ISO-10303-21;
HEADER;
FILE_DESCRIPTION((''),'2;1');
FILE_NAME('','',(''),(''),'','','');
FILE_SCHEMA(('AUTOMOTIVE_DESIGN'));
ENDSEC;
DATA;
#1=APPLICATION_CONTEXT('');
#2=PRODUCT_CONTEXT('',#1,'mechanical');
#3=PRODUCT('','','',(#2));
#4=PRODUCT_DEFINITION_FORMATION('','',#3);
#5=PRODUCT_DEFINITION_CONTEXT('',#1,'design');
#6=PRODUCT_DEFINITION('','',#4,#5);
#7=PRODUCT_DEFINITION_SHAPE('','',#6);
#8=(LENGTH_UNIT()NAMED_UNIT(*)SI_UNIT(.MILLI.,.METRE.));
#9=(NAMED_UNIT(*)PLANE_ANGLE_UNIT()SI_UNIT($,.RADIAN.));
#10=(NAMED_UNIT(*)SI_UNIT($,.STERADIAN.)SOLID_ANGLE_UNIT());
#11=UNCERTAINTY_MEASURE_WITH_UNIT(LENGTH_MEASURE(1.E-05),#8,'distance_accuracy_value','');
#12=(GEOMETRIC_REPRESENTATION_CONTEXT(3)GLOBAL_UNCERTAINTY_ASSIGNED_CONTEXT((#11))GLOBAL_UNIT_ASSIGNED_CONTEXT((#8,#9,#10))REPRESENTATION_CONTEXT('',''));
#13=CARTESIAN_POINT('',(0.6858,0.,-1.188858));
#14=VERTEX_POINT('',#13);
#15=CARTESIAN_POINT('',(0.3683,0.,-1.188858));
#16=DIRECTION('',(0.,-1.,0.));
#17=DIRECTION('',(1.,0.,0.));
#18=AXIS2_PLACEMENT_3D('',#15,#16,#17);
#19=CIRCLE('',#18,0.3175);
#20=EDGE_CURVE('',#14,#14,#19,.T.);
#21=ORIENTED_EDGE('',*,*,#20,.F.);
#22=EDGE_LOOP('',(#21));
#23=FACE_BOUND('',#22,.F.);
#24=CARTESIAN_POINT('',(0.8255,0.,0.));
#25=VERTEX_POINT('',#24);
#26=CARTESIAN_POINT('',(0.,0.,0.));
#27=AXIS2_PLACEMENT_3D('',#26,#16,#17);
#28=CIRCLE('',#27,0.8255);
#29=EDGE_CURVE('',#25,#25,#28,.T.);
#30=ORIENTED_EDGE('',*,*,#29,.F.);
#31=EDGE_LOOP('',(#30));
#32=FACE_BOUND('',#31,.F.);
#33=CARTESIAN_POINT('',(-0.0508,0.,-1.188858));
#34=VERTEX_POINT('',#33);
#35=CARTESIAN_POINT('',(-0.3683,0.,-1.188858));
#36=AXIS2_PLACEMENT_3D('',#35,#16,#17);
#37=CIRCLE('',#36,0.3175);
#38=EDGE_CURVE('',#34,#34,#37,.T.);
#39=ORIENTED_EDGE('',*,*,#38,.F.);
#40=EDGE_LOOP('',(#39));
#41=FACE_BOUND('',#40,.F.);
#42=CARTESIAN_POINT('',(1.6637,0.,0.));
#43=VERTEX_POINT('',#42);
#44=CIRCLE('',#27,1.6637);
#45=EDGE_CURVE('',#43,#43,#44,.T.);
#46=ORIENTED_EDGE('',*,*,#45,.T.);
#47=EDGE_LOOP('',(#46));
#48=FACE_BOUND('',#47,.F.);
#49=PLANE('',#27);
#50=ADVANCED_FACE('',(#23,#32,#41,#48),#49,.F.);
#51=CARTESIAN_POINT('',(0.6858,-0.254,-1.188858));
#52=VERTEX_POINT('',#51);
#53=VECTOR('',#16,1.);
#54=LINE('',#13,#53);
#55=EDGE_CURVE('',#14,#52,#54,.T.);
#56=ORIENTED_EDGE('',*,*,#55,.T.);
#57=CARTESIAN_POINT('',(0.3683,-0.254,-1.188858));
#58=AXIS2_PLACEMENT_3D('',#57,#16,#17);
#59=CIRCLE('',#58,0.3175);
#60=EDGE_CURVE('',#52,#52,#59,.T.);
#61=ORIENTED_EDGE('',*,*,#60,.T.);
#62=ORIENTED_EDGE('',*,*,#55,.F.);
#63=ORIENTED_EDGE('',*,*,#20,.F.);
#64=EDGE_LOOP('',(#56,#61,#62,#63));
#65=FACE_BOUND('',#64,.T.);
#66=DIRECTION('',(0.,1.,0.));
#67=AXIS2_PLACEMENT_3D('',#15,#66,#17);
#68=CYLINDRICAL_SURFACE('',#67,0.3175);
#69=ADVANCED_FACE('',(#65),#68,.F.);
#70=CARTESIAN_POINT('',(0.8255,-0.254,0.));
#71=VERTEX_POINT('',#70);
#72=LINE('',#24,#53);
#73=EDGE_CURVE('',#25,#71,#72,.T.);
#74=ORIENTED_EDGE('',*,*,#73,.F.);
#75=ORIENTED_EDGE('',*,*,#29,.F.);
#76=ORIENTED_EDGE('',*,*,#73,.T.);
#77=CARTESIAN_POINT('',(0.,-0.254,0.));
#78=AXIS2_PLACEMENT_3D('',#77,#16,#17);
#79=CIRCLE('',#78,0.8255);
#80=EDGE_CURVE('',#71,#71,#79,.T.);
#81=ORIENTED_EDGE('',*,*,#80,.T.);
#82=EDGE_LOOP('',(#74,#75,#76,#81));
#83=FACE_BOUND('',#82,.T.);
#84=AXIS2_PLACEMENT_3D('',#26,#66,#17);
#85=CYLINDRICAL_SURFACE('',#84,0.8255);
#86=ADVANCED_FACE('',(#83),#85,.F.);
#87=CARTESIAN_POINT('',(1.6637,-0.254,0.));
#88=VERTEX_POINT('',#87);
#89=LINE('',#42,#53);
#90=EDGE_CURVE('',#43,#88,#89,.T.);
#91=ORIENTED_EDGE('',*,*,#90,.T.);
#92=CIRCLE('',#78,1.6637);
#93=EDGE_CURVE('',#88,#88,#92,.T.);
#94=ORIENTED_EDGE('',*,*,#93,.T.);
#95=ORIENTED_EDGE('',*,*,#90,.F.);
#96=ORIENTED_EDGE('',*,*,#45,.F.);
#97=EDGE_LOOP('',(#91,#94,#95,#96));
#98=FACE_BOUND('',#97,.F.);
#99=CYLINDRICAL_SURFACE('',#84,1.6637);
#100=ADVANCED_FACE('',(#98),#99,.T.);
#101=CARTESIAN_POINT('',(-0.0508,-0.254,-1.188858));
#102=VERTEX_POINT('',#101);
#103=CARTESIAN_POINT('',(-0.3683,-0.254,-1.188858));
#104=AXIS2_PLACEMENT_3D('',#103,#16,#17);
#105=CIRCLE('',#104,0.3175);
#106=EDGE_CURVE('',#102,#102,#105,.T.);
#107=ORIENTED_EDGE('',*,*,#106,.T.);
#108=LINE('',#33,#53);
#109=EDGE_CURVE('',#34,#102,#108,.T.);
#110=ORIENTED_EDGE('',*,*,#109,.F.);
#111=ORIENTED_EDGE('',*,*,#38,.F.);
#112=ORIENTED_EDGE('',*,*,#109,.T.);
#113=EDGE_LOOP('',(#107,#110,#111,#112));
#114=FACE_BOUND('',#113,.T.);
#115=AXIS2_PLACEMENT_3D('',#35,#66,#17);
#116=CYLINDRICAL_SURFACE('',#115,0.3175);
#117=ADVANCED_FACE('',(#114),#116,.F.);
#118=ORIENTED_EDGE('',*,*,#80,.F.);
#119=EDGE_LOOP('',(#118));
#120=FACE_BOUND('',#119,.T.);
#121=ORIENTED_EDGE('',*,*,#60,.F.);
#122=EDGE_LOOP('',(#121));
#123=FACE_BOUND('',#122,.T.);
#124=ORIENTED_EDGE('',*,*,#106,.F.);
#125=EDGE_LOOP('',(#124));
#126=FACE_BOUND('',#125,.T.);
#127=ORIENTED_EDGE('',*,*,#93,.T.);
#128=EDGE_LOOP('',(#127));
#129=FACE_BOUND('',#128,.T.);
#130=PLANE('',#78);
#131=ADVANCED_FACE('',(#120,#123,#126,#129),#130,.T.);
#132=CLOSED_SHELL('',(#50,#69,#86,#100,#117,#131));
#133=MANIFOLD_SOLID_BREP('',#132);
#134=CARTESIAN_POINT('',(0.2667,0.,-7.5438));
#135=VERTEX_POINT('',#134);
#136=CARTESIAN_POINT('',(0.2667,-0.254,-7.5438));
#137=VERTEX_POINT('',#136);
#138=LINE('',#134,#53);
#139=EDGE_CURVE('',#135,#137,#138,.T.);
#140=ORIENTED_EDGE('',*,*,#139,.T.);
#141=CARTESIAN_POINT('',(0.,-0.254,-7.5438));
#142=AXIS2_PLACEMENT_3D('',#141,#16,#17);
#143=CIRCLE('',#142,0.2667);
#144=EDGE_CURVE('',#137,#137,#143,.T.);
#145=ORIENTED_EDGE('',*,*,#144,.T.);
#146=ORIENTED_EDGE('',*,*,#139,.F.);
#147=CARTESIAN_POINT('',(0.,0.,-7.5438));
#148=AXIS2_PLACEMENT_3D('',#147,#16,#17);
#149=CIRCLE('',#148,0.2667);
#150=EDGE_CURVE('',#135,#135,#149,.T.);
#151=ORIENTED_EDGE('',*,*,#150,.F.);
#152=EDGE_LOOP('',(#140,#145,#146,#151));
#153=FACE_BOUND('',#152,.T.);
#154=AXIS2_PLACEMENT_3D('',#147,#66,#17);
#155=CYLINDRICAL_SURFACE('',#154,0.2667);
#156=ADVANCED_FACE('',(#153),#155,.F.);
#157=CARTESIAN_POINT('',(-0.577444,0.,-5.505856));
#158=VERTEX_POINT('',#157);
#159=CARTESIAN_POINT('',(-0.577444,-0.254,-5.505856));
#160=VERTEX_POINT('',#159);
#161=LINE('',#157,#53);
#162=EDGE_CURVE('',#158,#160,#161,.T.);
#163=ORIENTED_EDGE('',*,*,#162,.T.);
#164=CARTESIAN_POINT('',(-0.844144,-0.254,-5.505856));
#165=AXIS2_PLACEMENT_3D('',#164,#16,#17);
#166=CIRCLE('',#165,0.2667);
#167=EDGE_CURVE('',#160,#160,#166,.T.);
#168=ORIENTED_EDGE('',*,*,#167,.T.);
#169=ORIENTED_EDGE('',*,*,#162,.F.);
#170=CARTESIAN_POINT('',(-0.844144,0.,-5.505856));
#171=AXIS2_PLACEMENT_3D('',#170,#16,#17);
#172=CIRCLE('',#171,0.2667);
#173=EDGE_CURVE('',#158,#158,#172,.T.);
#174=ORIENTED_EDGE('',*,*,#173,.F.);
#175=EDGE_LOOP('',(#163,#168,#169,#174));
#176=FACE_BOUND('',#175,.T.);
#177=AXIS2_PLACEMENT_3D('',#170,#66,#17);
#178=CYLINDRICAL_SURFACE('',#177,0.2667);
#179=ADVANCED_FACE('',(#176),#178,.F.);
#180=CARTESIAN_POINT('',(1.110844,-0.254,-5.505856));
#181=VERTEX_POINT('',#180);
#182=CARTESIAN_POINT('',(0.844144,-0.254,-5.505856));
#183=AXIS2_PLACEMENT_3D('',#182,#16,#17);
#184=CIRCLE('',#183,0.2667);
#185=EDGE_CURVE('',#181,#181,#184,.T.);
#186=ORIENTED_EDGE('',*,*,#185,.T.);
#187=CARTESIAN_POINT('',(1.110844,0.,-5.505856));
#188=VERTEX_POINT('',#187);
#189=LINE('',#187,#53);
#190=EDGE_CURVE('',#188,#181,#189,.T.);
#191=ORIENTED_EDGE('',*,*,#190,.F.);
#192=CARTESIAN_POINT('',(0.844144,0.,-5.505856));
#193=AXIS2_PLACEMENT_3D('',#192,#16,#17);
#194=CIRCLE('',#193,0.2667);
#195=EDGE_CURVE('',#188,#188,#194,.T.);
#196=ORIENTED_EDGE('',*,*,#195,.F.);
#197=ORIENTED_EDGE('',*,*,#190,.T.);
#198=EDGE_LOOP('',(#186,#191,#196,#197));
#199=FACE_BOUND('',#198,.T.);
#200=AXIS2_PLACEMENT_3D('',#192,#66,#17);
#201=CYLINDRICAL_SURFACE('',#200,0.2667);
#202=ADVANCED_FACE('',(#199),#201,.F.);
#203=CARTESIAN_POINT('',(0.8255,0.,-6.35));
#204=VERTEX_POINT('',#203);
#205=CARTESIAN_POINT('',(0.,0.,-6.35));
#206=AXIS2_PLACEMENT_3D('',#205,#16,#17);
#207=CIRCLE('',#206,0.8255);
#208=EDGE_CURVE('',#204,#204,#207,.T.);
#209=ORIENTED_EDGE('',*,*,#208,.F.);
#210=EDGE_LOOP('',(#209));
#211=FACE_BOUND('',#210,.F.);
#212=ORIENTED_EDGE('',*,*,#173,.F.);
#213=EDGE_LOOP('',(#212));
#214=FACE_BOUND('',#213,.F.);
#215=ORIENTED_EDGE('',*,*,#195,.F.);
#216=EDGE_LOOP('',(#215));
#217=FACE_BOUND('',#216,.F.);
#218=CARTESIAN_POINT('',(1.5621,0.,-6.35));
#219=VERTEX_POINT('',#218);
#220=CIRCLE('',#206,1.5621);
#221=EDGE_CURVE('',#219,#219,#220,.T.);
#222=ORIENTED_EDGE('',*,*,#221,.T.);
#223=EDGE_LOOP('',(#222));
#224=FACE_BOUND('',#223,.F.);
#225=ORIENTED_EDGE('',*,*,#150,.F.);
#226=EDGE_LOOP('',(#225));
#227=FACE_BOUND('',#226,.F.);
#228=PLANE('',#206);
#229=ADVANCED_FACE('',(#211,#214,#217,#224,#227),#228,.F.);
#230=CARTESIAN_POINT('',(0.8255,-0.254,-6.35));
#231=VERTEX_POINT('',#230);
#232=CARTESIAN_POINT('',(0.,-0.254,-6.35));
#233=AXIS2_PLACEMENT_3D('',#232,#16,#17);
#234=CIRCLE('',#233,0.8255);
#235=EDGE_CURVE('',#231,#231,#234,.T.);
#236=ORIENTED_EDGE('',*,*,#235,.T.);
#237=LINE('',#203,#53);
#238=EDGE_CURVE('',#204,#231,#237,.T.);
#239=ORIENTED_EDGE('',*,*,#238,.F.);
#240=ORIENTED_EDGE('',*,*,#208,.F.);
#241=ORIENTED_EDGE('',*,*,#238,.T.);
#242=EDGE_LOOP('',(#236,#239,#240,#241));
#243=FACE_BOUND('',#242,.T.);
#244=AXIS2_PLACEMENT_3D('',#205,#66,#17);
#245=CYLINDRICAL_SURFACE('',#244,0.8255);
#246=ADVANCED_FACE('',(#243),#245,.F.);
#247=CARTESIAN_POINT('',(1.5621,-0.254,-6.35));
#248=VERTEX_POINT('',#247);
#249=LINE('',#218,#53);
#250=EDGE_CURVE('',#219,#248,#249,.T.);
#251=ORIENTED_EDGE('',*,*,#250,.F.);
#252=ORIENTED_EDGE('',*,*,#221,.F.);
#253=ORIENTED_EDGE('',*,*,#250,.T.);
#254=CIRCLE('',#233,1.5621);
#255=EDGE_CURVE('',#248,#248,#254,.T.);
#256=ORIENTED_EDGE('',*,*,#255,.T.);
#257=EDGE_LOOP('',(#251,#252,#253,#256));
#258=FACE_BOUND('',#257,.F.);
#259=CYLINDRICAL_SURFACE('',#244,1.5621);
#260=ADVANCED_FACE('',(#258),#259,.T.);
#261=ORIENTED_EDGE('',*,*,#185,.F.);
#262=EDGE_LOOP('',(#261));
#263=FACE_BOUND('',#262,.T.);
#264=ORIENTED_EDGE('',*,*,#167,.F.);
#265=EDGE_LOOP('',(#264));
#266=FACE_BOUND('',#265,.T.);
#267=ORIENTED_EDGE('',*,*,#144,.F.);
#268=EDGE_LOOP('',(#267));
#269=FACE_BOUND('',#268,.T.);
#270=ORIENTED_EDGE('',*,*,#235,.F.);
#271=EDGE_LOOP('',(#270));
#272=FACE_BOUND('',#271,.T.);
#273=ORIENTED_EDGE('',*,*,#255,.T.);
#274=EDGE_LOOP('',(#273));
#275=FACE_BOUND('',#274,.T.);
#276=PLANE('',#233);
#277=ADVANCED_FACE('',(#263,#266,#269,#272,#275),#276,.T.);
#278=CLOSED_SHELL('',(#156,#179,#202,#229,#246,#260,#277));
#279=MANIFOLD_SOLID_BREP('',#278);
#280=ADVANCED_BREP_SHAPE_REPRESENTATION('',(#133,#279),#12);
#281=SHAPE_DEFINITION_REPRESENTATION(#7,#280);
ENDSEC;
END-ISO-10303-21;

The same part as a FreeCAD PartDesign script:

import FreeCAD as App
import Part
import Sketcher
from FreeCAD import Vector
Q = App.Units.Quantity

doc = App.newDocument("Part")
params = doc.addObject("Spreadsheet::Sheet", "Params")
for row, (alias, value) in enumerate([
    ("sketch1_diameter", "0.131 in"),
    ("sketch1_diameter2", "0.025 in"),
    ("sketch1_diameter3", "0.065 in"),
    ("sketch1_diameter4", "0.123 in"),
    ("sketch1_diameter5", "0.021 in"),
    ("pad1_length", "0.01 in"),
], start=1):
    params.set(f"A{row}", alias)
    params.set(f"B{row}", "=" + value)
    params.setAlias(f"B{row}", alias)

body = doc.addObject("PartDesign::Body", "Body")
body.AllowCompound = True

sketch1 = body.newObject("Sketcher::SketchObject", "Sketch")
sketch1.AttachmentSupport = (doc.getObject("XZ_Plane"), [""])
sketch1.MapMode = "FlatFace"
sketch1.addGeometry([
    Part.Circle(Vector(0, 0, 0), Vector(0, 0, 1), 1.66),
    Part.Circle(Vector(-0.37, -1.19, 0), Vector(0, 0, 1), 0.32),
    Part.Circle(Vector(0.37, -1.19, 0), Vector(0, 0, 1), 0.32),
    Part.Circle(Vector(0, 0, 0), Vector(0, 0, 1), 0.83),
    Part.Circle(Vector(0, -6.35, 0), Vector(0, 0, 1), 1.56),
    Part.Circle(Vector(0, -7.54, 0), Vector(0, 0, 1), 0.27),
    Part.Circle(Vector(-0.84, -5.51, 0), Vector(0, 0, 1), 0.27),
    Part.Circle(Vector(0, -6.35, 0), Vector(0, 0, 1), 0.83),
    Part.Circle(Vector(0.84, -5.51, 0), Vector(0, 0, 1), 0.27),
], False)
sketch1.addConstraint([
    Sketcher.Constraint("Coincident", 0, 3, -1, 1),
    Sketcher.Constraint("Coincident", 3, 3, -1, 1),
    Sketcher.Constraint("Coincident", 7, 3, 4, 3),
    Sketcher.Constraint("Equal", 1, 2),
    Sketcher.Constraint("Equal", 5, 6),
    Sketcher.Constraint("Equal", 3, 7),
    Sketcher.Constraint("Equal", 6, 8),
    Sketcher.Constraint("Symmetric", 1, 3, 2, 3, -2),
    Sketcher.Constraint("Symmetric", 6, 3, 8, 3, -2),
    Sketcher.Constraint("PointOnObject", 4, 3, -2),
    Sketcher.Constraint("PointOnObject", 5, 3, -2),
    Sketcher.Constraint("Diameter", 0, Q("0.131 in")),
    Sketcher.Constraint("Diameter", 1, Q("0.025 in")),
    Sketcher.Constraint("Diameter", 3, Q("0.065 in")),
    Sketcher.Constraint("Diameter", 4, Q("0.123 in")),
    Sketcher.Constraint("Diameter", 5, Q("0.021 in")),
    Sketcher.Constraint("DistanceY", 4, 3, -1, 1, Q("0.25 in")),
    Sketcher.Constraint("DistanceY", 5, 3, -1, 1, Q("0.297 in")),
    Sketcher.Constraint("DistanceX", 1, 3, 2, 3, Q("0.029 in")),
    Sketcher.Constraint("DistanceY", 1, 3, -1, 1, Q("1.188858 mm")),
    Sketcher.Constraint("DistanceX", 6, 3, -1, 1, Q("0.844144 mm")),
    Sketcher.Constraint("DistanceY", 6, 3, -1, 1, Q("5.505856 mm")),
])
sketch1.setExpression("Constraints[11]", "Params.sketch1_diameter")
sketch1.setExpression("Constraints[12]", "Params.sketch1_diameter2")
sketch1.setExpression("Constraints[13]", "Params.sketch1_diameter3")
sketch1.setExpression("Constraints[14]", "Params.sketch1_diameter4")
sketch1.setExpression("Constraints[15]", "Params.sketch1_diameter5")
pad1 = body.newObject("PartDesign::Pad", "Pad")
pad1.Profile = sketch1
pad1.setExpression("Length", "Params.pad1_length")

doc.recompute()
